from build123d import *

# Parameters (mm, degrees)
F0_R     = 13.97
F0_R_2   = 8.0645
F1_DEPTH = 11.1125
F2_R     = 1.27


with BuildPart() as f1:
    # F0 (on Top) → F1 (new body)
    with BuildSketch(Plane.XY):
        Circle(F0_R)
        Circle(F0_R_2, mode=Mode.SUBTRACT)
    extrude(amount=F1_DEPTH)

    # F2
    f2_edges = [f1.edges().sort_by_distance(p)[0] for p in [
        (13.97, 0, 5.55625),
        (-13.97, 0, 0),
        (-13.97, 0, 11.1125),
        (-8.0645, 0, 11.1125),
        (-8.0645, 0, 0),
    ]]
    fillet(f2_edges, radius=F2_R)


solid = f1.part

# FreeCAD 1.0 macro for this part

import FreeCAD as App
import Part
import Sketcher
Q = App.Units.Quantity

doc = App.newDocument("Part")
body = doc.addObject("PartDesign::Body", "Body")

# Sketch on XY plane
sketch1 = doc.addObject("Sketcher::SketchObject", "Sketch")
body.addObject(sketch1)
sketch1.AttachmentSupport = (doc.XY_Plane, [""])
sketch1.MapMode = "FlatFace"
sketch1.addGeometry([
    Part.Circle(App.Vector(0, 0, 0), App.Vector(0, 0, 1), 14),
    Part.Circle(App.Vector(0, 0, 0), App.Vector(0, 0, 1), 8),
], False)
sketch1.addConstraint([
    Sketcher.Constraint("Coincident", 0, 3, -1, 1),
    Sketcher.Constraint("Coincident", 1, 3, -1, 1),
    Sketcher.Constraint("Diameter", 0, Q("1.1 in")),
    Sketcher.Constraint("Diameter", 1, Q("0.635 in")),
])
pad1 = doc.addObject("PartDesign::Pad", "Pad")
body.addObject(pad1)
pad1.Profile = sketch1
pad1.Length = Q("0.4375 in")
doc.recompute()

fillet = doc.addObject("PartDesign::Fillet", "Fillet")
body.addObject(fillet)
fillet.Base = (pad1, ["Edge1"])
fillet.UseAllEdges = True
fillet.Radius = Q("0.05 in")

doc.recompute()
